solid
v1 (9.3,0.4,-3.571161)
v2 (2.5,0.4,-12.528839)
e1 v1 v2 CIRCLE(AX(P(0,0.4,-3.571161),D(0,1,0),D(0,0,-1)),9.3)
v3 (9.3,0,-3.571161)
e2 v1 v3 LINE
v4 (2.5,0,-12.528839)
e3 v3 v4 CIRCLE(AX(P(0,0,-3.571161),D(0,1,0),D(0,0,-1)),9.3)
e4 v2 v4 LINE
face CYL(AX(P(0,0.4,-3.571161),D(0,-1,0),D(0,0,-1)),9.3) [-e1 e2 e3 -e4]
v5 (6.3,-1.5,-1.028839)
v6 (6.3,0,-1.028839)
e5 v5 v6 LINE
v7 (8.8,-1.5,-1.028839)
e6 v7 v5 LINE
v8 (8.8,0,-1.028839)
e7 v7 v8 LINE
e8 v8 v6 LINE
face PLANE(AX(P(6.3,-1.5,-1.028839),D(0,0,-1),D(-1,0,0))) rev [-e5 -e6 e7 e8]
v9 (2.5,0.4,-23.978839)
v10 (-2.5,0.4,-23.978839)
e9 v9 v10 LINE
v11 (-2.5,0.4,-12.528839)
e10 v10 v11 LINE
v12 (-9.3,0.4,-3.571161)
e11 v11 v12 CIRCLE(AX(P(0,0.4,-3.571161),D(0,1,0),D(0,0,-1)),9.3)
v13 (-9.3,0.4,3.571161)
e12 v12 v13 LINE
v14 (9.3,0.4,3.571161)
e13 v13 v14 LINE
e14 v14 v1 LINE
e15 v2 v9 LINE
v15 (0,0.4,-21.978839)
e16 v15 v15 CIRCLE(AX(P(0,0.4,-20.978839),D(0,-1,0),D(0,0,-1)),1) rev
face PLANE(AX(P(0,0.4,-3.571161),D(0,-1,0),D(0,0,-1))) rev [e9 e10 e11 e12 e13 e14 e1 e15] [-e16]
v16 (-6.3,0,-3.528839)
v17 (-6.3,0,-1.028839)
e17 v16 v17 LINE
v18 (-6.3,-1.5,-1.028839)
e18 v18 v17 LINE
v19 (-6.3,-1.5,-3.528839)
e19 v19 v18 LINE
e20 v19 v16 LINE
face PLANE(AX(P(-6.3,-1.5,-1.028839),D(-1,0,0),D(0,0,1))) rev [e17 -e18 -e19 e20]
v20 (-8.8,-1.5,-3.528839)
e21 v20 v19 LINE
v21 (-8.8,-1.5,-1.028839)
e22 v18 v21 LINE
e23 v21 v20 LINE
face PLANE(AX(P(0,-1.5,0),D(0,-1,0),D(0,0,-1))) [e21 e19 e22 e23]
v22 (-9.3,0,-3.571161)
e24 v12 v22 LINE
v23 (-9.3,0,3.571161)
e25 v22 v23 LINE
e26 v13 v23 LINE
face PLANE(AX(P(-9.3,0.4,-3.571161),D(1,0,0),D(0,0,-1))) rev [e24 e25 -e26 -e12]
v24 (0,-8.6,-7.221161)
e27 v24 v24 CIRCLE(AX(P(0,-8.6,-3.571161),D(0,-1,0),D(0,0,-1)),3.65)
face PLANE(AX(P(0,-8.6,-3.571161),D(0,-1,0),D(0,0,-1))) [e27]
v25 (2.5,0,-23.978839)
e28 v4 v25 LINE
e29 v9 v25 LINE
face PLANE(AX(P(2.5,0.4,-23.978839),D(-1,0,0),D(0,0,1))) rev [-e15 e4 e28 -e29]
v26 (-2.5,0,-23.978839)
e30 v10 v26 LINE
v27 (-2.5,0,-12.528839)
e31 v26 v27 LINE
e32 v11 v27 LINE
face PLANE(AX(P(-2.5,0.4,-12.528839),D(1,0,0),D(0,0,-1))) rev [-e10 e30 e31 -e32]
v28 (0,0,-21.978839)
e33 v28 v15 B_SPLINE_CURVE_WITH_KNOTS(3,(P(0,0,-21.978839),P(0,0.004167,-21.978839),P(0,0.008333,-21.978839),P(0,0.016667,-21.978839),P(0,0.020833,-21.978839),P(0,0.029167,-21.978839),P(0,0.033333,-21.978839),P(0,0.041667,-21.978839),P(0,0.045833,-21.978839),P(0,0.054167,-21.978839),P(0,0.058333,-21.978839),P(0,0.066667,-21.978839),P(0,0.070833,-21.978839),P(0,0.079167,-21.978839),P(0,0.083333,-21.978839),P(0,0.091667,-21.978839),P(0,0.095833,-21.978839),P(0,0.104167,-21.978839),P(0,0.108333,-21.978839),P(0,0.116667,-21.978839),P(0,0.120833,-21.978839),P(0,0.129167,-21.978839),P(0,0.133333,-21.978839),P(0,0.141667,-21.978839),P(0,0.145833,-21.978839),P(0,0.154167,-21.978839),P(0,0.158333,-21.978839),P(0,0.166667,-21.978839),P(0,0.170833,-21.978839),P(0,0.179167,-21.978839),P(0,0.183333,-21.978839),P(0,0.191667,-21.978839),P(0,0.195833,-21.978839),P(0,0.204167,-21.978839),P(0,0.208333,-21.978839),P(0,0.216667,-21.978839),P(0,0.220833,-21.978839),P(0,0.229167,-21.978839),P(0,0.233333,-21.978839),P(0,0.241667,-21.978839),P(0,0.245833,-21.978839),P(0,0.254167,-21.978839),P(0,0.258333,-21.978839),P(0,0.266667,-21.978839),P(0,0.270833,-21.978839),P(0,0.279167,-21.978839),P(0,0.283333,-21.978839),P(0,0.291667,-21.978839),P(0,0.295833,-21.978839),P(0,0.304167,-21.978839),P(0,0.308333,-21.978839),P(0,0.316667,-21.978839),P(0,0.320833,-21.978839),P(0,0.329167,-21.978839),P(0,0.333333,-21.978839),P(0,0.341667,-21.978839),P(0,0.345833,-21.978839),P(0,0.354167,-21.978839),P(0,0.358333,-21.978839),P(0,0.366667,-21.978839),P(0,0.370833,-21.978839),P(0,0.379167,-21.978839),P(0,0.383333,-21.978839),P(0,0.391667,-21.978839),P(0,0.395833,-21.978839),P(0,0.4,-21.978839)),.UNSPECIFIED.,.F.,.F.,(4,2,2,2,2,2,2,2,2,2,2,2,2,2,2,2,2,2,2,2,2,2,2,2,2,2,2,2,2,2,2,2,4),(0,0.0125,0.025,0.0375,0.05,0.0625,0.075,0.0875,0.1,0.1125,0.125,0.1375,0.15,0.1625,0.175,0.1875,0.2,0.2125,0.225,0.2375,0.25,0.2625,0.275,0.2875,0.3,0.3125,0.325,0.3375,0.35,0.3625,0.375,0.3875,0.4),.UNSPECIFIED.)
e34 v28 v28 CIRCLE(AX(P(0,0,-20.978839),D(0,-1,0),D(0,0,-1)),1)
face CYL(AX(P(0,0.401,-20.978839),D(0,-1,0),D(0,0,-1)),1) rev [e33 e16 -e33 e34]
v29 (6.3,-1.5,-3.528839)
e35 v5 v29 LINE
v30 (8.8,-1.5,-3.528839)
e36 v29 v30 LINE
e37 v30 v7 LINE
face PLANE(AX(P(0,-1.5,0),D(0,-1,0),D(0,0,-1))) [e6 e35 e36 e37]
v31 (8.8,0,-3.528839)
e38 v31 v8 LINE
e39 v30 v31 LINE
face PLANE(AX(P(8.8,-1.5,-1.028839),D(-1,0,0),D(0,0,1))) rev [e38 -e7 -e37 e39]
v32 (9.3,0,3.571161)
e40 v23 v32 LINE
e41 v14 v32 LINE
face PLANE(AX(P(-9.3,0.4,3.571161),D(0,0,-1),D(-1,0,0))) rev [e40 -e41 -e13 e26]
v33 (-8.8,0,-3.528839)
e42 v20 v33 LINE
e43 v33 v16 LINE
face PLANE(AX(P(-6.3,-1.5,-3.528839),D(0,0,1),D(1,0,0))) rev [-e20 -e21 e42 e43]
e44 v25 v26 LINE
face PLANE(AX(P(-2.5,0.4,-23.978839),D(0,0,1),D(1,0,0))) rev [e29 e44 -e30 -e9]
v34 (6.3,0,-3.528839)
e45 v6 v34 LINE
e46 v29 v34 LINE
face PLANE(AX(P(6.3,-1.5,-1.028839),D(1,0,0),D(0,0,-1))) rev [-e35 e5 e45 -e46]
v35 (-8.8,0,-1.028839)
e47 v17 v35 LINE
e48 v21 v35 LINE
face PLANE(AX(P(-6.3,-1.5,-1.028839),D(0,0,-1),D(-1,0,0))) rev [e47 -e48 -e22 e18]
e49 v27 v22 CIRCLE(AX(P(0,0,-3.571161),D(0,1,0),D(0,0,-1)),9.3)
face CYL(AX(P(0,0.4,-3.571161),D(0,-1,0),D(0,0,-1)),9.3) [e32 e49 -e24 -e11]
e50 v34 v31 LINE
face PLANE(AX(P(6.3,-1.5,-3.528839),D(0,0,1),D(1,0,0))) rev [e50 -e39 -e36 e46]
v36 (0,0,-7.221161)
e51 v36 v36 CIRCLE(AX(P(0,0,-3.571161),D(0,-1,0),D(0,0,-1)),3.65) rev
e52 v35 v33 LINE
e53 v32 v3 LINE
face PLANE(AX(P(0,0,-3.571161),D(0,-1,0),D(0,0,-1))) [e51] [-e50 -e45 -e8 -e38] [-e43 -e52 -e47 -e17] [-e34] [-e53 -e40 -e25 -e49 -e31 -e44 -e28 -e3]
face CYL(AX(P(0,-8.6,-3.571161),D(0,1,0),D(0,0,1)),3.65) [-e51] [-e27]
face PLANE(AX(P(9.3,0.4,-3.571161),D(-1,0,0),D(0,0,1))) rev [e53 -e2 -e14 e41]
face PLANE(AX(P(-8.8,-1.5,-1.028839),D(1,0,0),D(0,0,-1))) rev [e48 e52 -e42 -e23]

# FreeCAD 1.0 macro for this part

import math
import FreeCAD as App
import Part
import Sketcher

V = App.Vector

doc = App.newDocument("Part")
body = doc.addObject("PartDesign::Body", "Body")

# Sketch on XZ plane
sketch1 = body.newObject("Sketcher::SketchObject", "Sketch")
sketch1.AttachmentSupport = (doc.getObject("XZ_Plane"), [""])
sketch1.MapMode = "FlatFace"
sketch1.addGeometry([
    Part.LineSegment(V(-2, -24, 0), V(-2, -13, 0)),  # 0
    Part.ArcOfCircle(Part.Circle(V(0, -4, 0), V(0, 0, 1), 9), math.radians(180), math.radians(254)),  # 1
    Part.LineSegment(V(-9, -4, 0), V(-9, 4, 0)),  # 2
    Part.LineSegment(V(-9, 4, 0), V(9, 4, 0)),  # 3
    Part.LineSegment(V(9, 4, 0), V(9, -4, 0)),  # 4
    Part.ArcOfCircle(Part.Circle(V(0, -4, 0), V(0, 0, 1), 9), math.radians(-74), math.radians(0)),  # 5
    Part.LineSegment(V(2, -13, 0), V(2, -24, 0)),  # 6
    Part.LineSegment(V(2, -24, 0), V(-2, -24, 0)),  # 7
], False)
sketch1.addConstraint([
    Sketcher.Constraint("Coincident", 0, 2, 1, 2),
    Sketcher.Constraint("Tangent", 1, 1, 2, 1),
    Sketcher.Constraint("Coincident", 2, 2, 3, 1),
    Sketcher.Constraint("Coincident", 3, 2, 4, 1),
    Sketcher.Constraint("Tangent", 4, 2, 5, 2),
    Sketcher.Constraint("Coincident", 5, 1, 6, 1),
    Sketcher.Constraint("Coincident", 6, 2, 7, 1),
    Sketcher.Constraint("Coincident", 7, 2, 0, 1),
    Sketcher.Constraint("Vertical", 0),
    Sketcher.Constraint("Vertical", 2),
    Sketcher.Constraint("Horizontal", 3),
    Sketcher.Constraint("Vertical", 4),
    Sketcher.Constraint("Vertical", 6),
    Sketcher.Constraint("Horizontal", 7),
    Sketcher.Constraint("Coincident", 5, 3, 1, 3),
    Sketcher.Constraint("Equal", 1, 5),
    Sketcher.Constraint("Symmetric", 1, 1, 3, 2, -1, 1),
    Sketcher.Constraint("Horizontal", 0, 2, 5, 1),
    Sketcher.Constraint("Radius", 1, 9.3),
    Sketcher.Constraint("DistanceX", 7, 2, 7, 1, 5.0),
    Sketcher.Constraint("DistanceY", 0, 1, 0, 2, 11.45),
    Sketcher.Constraint("DistanceY", 0, 2, 2, 2, 16.1),
])
pad1 = body.newObject("PartDesign::Pad", "Pad")
pad1.Profile = sketch1
pad1.Length = 0.4
pad1.Reversed = True

# Sketch on XZ plane
sketch2 = body.newObject("Sketcher::SketchObject", "Sketch001")
sketch2.AttachmentSupport = (doc.getObject("XZ_Plane"), [""])
sketch2.MapMode = "FlatFace"
sketch2.addGeometry([
    Part.LineSegment(V(6.3, -1, 0), V(6.3, -3.5, 0)),  # 0
    Part.LineSegment(V(6.3, -3.5, 0), V(8.8, -3.5, 0)),  # 1
    Part.LineSegment(V(8.8, -3.5, 0), V(8.8, -1, 0)),  # 2
    Part.LineSegment(V(8.8, -1, 0), V(6.3, -1, 0)),  # 3
    Part.LineSegment(V(-8.8, -1, 0), V(-8.8, -3.5, 0)),  # 4
    Part.LineSegment(V(-8.8, -3.5, 0), V(-6.3, -3.5, 0)),  # 5
    Part.LineSegment(V(-6.3, -3.5, 0), V(-6.3, -1, 0)),  # 6
    Part.LineSegment(V(-6.3, -1, 0), V(-8.8, -1, 0)),  # 7
], False)
sketch2.addConstraint([
    Sketcher.Constraint("Coincident", 0, 2, 1, 1),
    Sketcher.Constraint("Coincident", 1, 2, 2, 1),
    Sketcher.Constraint("Coincident", 2, 2, 3, 1),
    Sketcher.Constraint("Coincident", 3, 2, 0, 1),
    Sketcher.Constraint("Coincident", 4, 2, 5, 1),
    Sketcher.Constraint("Coincident", 5, 2, 6, 1),
    Sketcher.Constraint("Coincident", 6, 2, 7, 1),
    Sketcher.Constraint("Coincident", 7, 2, 4, 1),
    Sketcher.Constraint("Vertical", 0),
    Sketcher.Constraint("Horizontal", 1),
    Sketcher.Constraint("Vertical", 2),
    Sketcher.Constraint("Horizontal", 3),
    Sketcher.Constraint("Vertical", 4),
    Sketcher.Constraint("Horizontal", 5),
    Sketcher.Constraint("Vertical", 6),
    Sketcher.Constraint("Horizontal", 7),
    Sketcher.Constraint("Symmetric", 1, 2, 4, 2, -2),
    Sketcher.Constraint("Symmetric", 3, 2, 6, 2, -2),
    Sketcher.Constraint("Equal", 7, 0),
    Sketcher.Constraint("DistanceX", 1, 1, 1, 2, 2.5),
    Sketcher.Constraint("DistanceX", -1, 1, 0, 2, 6.3),
    Sketcher.Constraint("DistanceY", 0, 2, -1, 1, 3.528839),
])
pad2 = body.newObject("PartDesign::Pad", "Pad001")
pad2.Profile = sketch2
pad2.Length = 1.5

# Sketch on XZ plane
sketch3 = body.newObject("Sketcher::SketchObject", "Sketch002")
sketch3.AttachmentSupport = (doc.getObject("XZ_Plane"), [""])
sketch3.MapMode = "FlatFace"
sketch3.addGeometry(Part.Circle(V(0, -21, 0), V(0, 0, 1), 1), False)
sketch3.addConstraint([
    Sketcher.Constraint("PointOnObject", 0, 3, -2),
    Sketcher.Constraint("Diameter", 0, 2.0),
    Sketcher.Constraint("DistanceY", 0, 3, -1, 1, 20.978839),
])
pocket1 = body.newObject("PartDesign::Pocket", "Pocket")
pocket1.Profile = sketch3
pocket1.Type = "UpToFirst"

# Sketch on XZ plane
sketch4 = body.newObject("Sketcher::SketchObject", "Sketch003")
sketch4.AttachmentSupport = (doc.getObject("XZ_Plane"), [""])
sketch4.MapMode = "FlatFace"
sketch4.AttachmentOffset = App.Placement(V(0, 0, -0.4), App.Rotation())
sketch4.addGeometry(Part.Circle(V(0, -3.6, 0), V(0, 0, 1), 3.6), False)
sketch4.addConstraint([
    Sketcher.Constraint("PointOnObject", 0, 3, -2),
    Sketcher.Constraint("Diameter", 0, 7.3),
    Sketcher.Constraint("DistanceY", 0, 3, -1, 1, 3.571161),
])
pad3 = body.newObject("PartDesign::Pad", "Pad002")
pad3.Profile = sketch4
pad3.Length = 9

doc.recompute()
